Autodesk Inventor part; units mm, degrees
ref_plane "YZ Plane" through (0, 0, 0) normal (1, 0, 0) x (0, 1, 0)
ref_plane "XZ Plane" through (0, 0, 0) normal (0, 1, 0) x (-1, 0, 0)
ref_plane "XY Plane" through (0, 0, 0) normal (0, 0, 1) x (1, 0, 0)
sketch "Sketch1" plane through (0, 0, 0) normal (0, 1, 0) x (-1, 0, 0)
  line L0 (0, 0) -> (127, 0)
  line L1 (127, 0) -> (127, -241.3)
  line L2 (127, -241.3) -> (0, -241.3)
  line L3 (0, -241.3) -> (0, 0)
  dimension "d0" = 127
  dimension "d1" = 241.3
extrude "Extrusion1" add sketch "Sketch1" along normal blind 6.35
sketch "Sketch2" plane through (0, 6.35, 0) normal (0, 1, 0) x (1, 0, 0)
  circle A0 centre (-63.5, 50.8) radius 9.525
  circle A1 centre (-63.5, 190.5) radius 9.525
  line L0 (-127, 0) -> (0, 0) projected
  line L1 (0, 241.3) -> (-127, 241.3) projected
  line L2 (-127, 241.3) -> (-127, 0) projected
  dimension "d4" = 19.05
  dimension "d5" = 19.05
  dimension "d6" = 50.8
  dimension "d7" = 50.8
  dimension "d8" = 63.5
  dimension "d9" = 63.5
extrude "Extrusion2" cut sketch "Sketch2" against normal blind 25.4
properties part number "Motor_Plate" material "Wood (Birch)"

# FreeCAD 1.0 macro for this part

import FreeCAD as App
import Part
import Sketcher

V = App.Vector
Q = App.Units.Quantity

doc = App.newDocument("Part")
body = doc.addObject("PartDesign::Body", "Body")

# Sketch on XZ plane
sketch1 = body.newObject("Sketcher::SketchObject", "Sketch")
sketch1.AttachmentSupport = (doc.getObject("XZ_Plane"), [""])
sketch1.MapMode = "FlatFace"
sketch1.addGeometry([
    Part.LineSegment(V(-127, 0, 0), V(0, 0, 0)),
    Part.LineSegment(V(0, 0, 0), V(0, -241, 0)),
    Part.LineSegment(V(0, -241, 0), V(-127, -241, 0)),
    Part.LineSegment(V(-127, -241, 0), V(-127, 0, 0)),
], False)
sketch1.addConstraint([
    Sketcher.Constraint("Coincident", 0, 2, 1, 1),
    Sketcher.Constraint("Coincident", 1, 2, 2, 1),
    Sketcher.Constraint("Coincident", 2, 2, 3, 1),
    Sketcher.Constraint("Coincident", 3, 2, 0, 1),
    Sketcher.Constraint("Horizontal", 0),
    Sketcher.Constraint("Vertical", 1),
    Sketcher.Constraint("Horizontal", 2),
    Sketcher.Constraint("Vertical", 3),
    Sketcher.Constraint("Coincident", 0, 2, -1, 1),
    Sketcher.Constraint("DistanceX", 0, 1, 0, 2, Q("5 in")),
    Sketcher.Constraint("DistanceY", 1, 2, 1, 1, Q("9.5 in")),
])
pad1 = body.newObject("PartDesign::Pad", "Pad")
pad1.Profile = sketch1
pad1.Length = Q("0.25 in")
pad1.Reversed = True

# Sketch on XZ plane
sketch2 = body.newObject("Sketcher::SketchObject", "Sketch001")
sketch2.AttachmentSupport = (doc.getObject("XZ_Plane"), [""])
sketch2.MapMode = "FlatFace"
sketch2.AttachmentOffset = App.Placement(V(0, 0, -0.25 * 25.4), App.Rotation())
sketch2.addGeometry([
    Part.Circle(V(-64, -51, 0), V(0, 0, 1), 10),
    Part.Circle(V(-64, -190, 0), V(0, 0, 1), 10),
], False)
sketch2.addConstraint([
    Sketcher.Constraint("Equal", 0, 1),
    Sketcher.Constraint("Vertical", 0, 3, 1, 3),
    Sketcher.Constraint("Diameter", 0, Q("0.75 in")),
    Sketcher.Constraint("DistanceY", 0, 3, -1, 1, Q("2 in")),
    Sketcher.Constraint("DistanceX", 0, 3, -1, 1, Q("2.5 in")),
    Sketcher.Constraint("DistanceY", 1, 3, -1, 1, Q("7.5 in")),
])
pocket1 = body.newObject("PartDesign::Pocket", "Pocket")
pocket1.Profile = sketch2
pocket1.Length = Q("1 in")
pocket1.Reversed = True

doc.recompute()
